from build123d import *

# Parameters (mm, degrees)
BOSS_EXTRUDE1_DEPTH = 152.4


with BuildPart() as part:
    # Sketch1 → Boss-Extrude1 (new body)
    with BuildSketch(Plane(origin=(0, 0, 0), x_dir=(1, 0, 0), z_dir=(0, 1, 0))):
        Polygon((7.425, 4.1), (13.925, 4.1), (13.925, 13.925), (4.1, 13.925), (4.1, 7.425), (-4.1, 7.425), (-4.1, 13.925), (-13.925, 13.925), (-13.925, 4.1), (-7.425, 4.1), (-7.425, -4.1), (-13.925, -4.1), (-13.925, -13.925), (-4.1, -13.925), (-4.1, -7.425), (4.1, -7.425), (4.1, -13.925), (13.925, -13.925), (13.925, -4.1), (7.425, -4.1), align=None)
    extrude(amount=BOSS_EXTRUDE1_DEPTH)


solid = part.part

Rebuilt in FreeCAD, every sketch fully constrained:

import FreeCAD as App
import Part
import Sketcher

doc = App.newDocument("Part")
body = doc.addObject("PartDesign::Body", "Body")

# Sketch on XZ plane
sketch1 = body.newObject("Sketcher::SketchObject", "Sketch")
sketch1.AttachmentSupport = (doc.getObject("XZ_Plane"), [""])
sketch1.MapMode = "FlatFace"
sketch1.addGeometry(Part.LineSegment(App.Vector(7.425, -4.1, 0), App.Vector(13.925, -4.1, 0)), False)
sketch1.addGeometry(Part.LineSegment(App.Vector(13.925, -4.1, 0), App.Vector(13.925, -13.925, 0)), False)
sketch1.addGeometry(Part.LineSegment(App.Vector(13.925, -13.925, 0), App.Vector(4.1, -13.925, 0)), False)
sketch1.addGeometry(Part.LineSegment(App.Vector(4.1, -13.925, 0), App.Vector(4.1, -7.425, 0)), False)
sketch1.addGeometry(Part.LineSegment(App.Vector(4.1, -7.425, 0), App.Vector(-4.1, -7.425, 0)), False)
sketch1.addGeometry(Part.LineSegment(App.Vector(-4.1, -7.425, 0), App.Vector(-4.1, -13.925, 0)), False)
sketch1.addGeometry(Part.LineSegment(App.Vector(-4.1, -13.925, 0), App.Vector(-13.925, -13.925, 0)), False)
sketch1.addGeometry(Part.LineSegment(App.Vector(-13.925, -13.925, 0), App.Vector(-13.925, -4.1, 0)), False)
sketch1.addGeometry(Part.LineSegment(App.Vector(-13.925, -4.1, 0), App.Vector(-7.425, -4.1, 0)), False)
sketch1.addGeometry(Part.LineSegment(App.Vector(-7.425, -4.1, 0), App.Vector(-7.425, 4.1, 0)), False)
sketch1.addGeometry(Part.LineSegment(App.Vector(-7.425, 4.1, 0), App.Vector(-13.925, 4.1, 0)), False)
sketch1.addGeometry(Part.LineSegment(App.Vector(-13.925, 4.1, 0), App.Vector(-13.925, 13.925, 0)), False)
sketch1.addGeometry(Part.LineSegment(App.Vector(-13.925, 13.925, 0), App.Vector(-4.1, 13.925, 0)), False)
sketch1.addGeometry(Part.LineSegment(App.Vector(-4.1, 13.925, 0), App.Vector(-4.1, 7.425, 0)), False)
sketch1.addGeometry(Part.LineSegment(App.Vector(-4.1, 7.425, 0), App.Vector(4.1, 7.425, 0)), False)
sketch1.addGeometry(Part.LineSegment(App.Vector(4.1, 7.425, 0), App.Vector(4.1, 13.925, 0)), False)
sketch1.addGeometry(Part.LineSegment(App.Vector(4.1, 13.925, 0), App.Vector(13.925, 13.925, 0)), False)
sketch1.addGeometry(Part.LineSegment(App.Vector(13.925, 13.925, 0), App.Vector(13.925, 4.1, 0)), False)
sketch1.addGeometry(Part.LineSegment(App.Vector(13.925, 4.1, 0), App.Vector(7.425, 4.1, 0)), False)
sketch1.addGeometry(Part.LineSegment(App.Vector(7.425, 4.1, 0), App.Vector(7.425, -4.1, 0)), False)
sketch1.addConstraint(Sketcher.Constraint("Coincident", 0, 2, 1, 1))
sketch1.addConstraint(Sketcher.Constraint("Coincident", 1, 2, 2, 1))
sketch1.addConstraint(Sketcher.Constraint("Coincident", 2, 2, 3, 1))
sketch1.addConstraint(Sketcher.Constraint("Coincident", 3, 2, 4, 1))
sketch1.addConstraint(Sketcher.Constraint("Coincident", 4, 2, 5, 1))
sketch1.addConstraint(Sketcher.Constraint("Coincident", 5, 2, 6, 1))
sketch1.addConstraint(Sketcher.Constraint("Coincident", 6, 2, 7, 1))
sketch1.addConstraint(Sketcher.Constraint("Coincident", 7, 2, 8, 1))
sketch1.addConstraint(Sketcher.Constraint("Coincident", 8, 2, 9, 1))
sketch1.addConstraint(Sketcher.Constraint("Coincident", 9, 2, 10, 1))
sketch1.addConstraint(Sketcher.Constraint("Coincident", 10, 2, 11, 1))
sketch1.addConstraint(Sketcher.Constraint("Coincident", 11, 2, 12, 1))
sketch1.addConstraint(Sketcher.Constraint("Coincident", 12, 2, 13, 1))
sketch1.addConstraint(Sketcher.Constraint("Coincident", 13, 2, 14, 1))
sketch1.addConstraint(Sketcher.Constraint("Coincident", 14, 2, 15, 1))
sketch1.addConstraint(Sketcher.Constraint("Coincident", 15, 2, 16, 1))
sketch1.addConstraint(Sketcher.Constraint("Coincident", 16, 2, 17, 1))
sketch1.addConstraint(Sketcher.Constraint("Coincident", 17, 2, 18, 1))
sketch1.addConstraint(Sketcher.Constraint("Coincident", 18, 2, 19, 1))
sketch1.addConstraint(Sketcher.Constraint("Coincident", 19, 2, 0, 1))
sketch1.addConstraint(Sketcher.Constraint("Horizontal", 0))
sketch1.addConstraint(Sketcher.Constraint("Vertical", 1))
sketch1.addConstraint(Sketcher.Constraint("Horizontal", 2))
sketch1.addConstraint(Sketcher.Constraint("Vertical", 3))
sketch1.addConstraint(Sketcher.Constraint("Horizontal", 4))
sketch1.addConstraint(Sketcher.Constraint("Vertical", 5))
sketch1.addConstraint(Sketcher.Constraint("Horizontal", 6))
sketch1.addConstraint(Sketcher.Constraint("Vertical", 7))
sketch1.addConstraint(Sketcher.Constraint("Horizontal", 8))
sketch1.addConstraint(Sketcher.Constraint("Vertical", 9))
sketch1.addConstraint(Sketcher.Constraint("Horizontal", 10))
sketch1.addConstraint(Sketcher.Constraint("Vertical", 11))
sketch1.addConstraint(Sketcher.Constraint("Horizontal", 12))
sketch1.addConstraint(Sketcher.Constraint("Vertical", 13))
sketch1.addConstraint(Sketcher.Constraint("Horizontal", 14))
sketch1.addConstraint(Sketcher.Constraint("Vertical", 15))
sketch1.addConstraint(Sketcher.Constraint("Horizontal", 16))
sketch1.addConstraint(Sketcher.Constraint("Vertical", 17))
sketch1.addConstraint(Sketcher.Constraint("Horizontal", 18))
sketch1.addConstraint(Sketcher.Constraint("Vertical", 19))
sketch1.addConstraint(Sketcher.Constraint("Symmetric", 0, 2, 10, 2, -1, 1))
sketch1.addConstraint(Sketcher.Constraint("Symmetric", 2, 2, 12, 2, -1, 1))
sketch1.addConstraint(Sketcher.Constraint("Symmetric", 4, 2, 14, 2, -1, 1))
sketch1.addConstraint(Sketcher.Constraint("Symmetric", 6, 2, 16, 2, -1, 1))
sketch1.addConstraint(Sketcher.Constraint("Symmetric", 8, 2, 18, 2, -1, 1))
sketch1.addConstraint(Sketcher.Constraint("Symmetric", 2, 2, 5, 2, -2))
sketch1.addConstraint(Sketcher.Constraint("Symmetric", 0, 2, 7, 2, -2))
sketch1.addConstraint(Sketcher.Constraint("Equal", 16, 1))
sketch1.addConstraint(Sketcher.Constraint("Equal", 18, 3))
sketch1.addConstraint(Sketcher.Constraint("Equal", 14, 9))
sketch1.addConstraint(Sketcher.Constraint("DistanceX", 0, 1, 0, 2, 6.5))
sketch1.addConstraint(Sketcher.Constraint("DistanceX", 4, 2, 4, 1, 8.2))
sketch1.addConstraint(Sketcher.Constraint("DistanceX", 2, 2, 2, 1, 9.825))
pad1 = body.newObject("PartDesign::Pad", "Pad")
pad1.Profile = sketch1
pad1.Length = 152.4
pad1.Reversed = True

doc.recompute()
